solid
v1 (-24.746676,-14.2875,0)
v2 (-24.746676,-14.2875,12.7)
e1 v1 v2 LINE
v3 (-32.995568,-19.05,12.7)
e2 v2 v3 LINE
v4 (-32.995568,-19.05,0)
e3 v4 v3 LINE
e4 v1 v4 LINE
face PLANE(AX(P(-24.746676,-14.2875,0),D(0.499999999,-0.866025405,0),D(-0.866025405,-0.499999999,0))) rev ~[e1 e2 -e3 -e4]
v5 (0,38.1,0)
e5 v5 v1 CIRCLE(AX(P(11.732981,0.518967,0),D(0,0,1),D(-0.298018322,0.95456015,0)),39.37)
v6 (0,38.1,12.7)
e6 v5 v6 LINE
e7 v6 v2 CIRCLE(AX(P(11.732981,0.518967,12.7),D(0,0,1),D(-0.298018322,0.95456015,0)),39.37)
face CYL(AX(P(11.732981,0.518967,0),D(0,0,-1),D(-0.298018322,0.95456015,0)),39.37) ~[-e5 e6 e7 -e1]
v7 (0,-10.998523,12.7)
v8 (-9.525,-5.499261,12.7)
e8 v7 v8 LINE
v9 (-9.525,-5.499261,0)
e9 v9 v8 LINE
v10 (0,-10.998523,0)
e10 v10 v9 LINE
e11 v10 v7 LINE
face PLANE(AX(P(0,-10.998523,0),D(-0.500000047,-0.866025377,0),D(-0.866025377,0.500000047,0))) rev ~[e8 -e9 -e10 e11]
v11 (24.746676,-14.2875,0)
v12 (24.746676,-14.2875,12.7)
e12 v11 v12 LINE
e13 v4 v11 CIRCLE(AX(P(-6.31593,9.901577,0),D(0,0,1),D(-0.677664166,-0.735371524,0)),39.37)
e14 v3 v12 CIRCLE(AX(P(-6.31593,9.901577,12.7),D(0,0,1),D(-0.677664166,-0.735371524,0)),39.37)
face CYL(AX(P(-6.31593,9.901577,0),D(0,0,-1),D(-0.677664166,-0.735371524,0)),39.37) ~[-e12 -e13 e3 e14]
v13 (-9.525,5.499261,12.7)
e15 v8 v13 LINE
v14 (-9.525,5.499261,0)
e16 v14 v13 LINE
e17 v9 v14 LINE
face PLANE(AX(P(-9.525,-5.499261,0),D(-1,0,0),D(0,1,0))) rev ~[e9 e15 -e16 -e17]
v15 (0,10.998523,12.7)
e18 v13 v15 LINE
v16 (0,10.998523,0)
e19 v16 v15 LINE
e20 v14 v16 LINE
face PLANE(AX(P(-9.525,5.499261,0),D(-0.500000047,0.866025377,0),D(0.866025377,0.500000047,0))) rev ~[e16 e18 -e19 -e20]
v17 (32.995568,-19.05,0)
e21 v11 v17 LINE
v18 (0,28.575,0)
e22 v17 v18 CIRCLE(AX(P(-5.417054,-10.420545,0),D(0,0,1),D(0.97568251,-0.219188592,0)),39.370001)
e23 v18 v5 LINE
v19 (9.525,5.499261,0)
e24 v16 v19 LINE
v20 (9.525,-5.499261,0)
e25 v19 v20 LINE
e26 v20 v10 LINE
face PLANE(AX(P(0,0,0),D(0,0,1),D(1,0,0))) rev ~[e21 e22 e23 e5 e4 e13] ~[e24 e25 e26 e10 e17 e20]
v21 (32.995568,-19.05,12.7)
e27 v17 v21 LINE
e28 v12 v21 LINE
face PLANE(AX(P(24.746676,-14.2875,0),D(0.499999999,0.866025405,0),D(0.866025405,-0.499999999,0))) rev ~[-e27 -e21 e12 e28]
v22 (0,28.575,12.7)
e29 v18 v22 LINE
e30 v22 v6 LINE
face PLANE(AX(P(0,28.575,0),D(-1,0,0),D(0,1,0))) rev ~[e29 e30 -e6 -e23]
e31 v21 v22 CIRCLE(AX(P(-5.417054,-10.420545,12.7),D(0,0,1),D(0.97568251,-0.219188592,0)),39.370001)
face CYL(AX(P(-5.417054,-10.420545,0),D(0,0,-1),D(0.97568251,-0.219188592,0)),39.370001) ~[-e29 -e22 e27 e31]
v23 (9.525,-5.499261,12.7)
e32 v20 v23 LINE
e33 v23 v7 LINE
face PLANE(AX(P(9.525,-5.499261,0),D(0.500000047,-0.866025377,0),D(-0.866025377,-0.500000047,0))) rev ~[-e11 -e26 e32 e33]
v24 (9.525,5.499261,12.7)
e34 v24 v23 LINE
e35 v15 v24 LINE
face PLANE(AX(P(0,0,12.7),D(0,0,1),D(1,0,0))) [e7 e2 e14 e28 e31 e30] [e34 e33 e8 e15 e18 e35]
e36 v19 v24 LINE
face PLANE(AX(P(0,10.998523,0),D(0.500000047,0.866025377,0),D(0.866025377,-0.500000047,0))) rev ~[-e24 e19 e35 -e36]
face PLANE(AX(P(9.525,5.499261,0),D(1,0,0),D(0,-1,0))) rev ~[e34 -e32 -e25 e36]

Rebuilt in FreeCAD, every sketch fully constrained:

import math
import FreeCAD as App
import Part
import Sketcher
from FreeCAD import Vector
Q = App.Units.Quantity


def add_polygon(sketch, points):
    """Adds a closed chain of lines whose ends are joined by coincident constraints."""
    first, n = sketch.GeometryCount, len(points)
    for a, b in zip(points, points[1:] + points[:1]):
        sketch.addGeometry(Part.LineSegment(App.Vector(*a, 0), App.Vector(*b, 0)), False)
    for i in range(n):
        sketch.addConstraint(Sketcher.Constraint("Coincident", first + i, 2, first + (i + 1) % n, 1))

doc = App.newDocument("Part")
body = doc.addObject("PartDesign::Body", "Body")

# Sketch on XY plane
sketch1 = doc.addObject("Sketcher::SketchObject", "Sketch")
body.addObject(sketch1)
sketch1.AttachmentSupport = (doc.XY_Plane, [""])
sketch1.MapMode = "FlatFace"
sketch1.addGeometry(Part.LineSegment(Vector(0, 29, 0), Vector(0, 38, 0)), False)  # 0
sketch1.addGeometry(Part.ArcOfCircle(Part.Circle(Vector(12, 1, 0), Vector(0, 0, 1), 39), math.radians(107), math.radians(202)), False)  # 1
sketch1.addGeometry(Part.LineSegment(Vector(-25, -14, 0), Vector(-33, -19, 0)), False)  # 2
sketch1.addGeometry(Part.ArcOfCircle(Part.Circle(Vector(-6, 10, 0), Vector(0, 0, 1), 39), math.radians(-133), math.radians(-38)), False)  # 3
sketch1.addGeometry(Part.LineSegment(Vector(25, -14, 0), Vector(33, -19, 0)), False)  # 4
sketch1.addGeometry(Part.ArcOfCircle(Part.Circle(Vector(-5, -10, 0), Vector(0, 0, 1), 39), math.radians(-13), math.radians(82)), False)  # 5
add_polygon(sketch1, [(-10, 5), (0, 11), (10, 5), (10, -5), (0, -11), (-10, -5)])  # lines 6-11
sketch1.addConstraint(Sketcher.Constraint("Coincident", 0, 2, 1, 1))
sketch1.addConstraint(Sketcher.Constraint("Coincident", 1, 2, 2, 1))
sketch1.addConstraint(Sketcher.Constraint("Coincident", 2, 2, 3, 1))
sketch1.addConstraint(Sketcher.Constraint("Coincident", 3, 2, 4, 1))
sketch1.addConstraint(Sketcher.Constraint("Coincident", 4, 2, 5, 1))
sketch1.addConstraint(Sketcher.Constraint("Coincident", 5, 2, 0, 1))
sketch1.addConstraint(Sketcher.Constraint("Vertical", 0))
sketch1.addConstraint(Sketcher.Constraint("Vertical", 8))
sketch1.addConstraint(Sketcher.Constraint("Vertical", 11))
sketch1.addConstraint(Sketcher.Constraint("Equal", 1, 3))
sketch1.addConstraint(Sketcher.Constraint("Equal", 3, 5))
sketch1.addConstraint(Sketcher.Constraint("Symmetric", 6, 2, 9, 2, -1, 1))
sketch1.addConstraint(Sketcher.Constraint("Symmetric", 7, 2, 10, 2, -1, 1))
sketch1.addConstraint(Sketcher.Constraint("Symmetric", 1, 2, 3, 2, -2))
sketch1.addConstraint(Sketcher.Constraint("Symmetric", 2, 2, 4, 2, -2))
sketch1.addConstraint(Sketcher.Constraint("PointOnObject", 0, 2, -2))
sketch1.addConstraint(Sketcher.Constraint("PointOnObject", 6, 2, -2))
sketch1.addConstraint(Sketcher.Constraint("Parallel", 2, 6))
sketch1.addConstraint(Sketcher.Constraint("Parallel", 4, 7))
sketch1.addConstraint(Sketcher.Constraint("Parallel", 6, 9))
sketch1.addConstraint(Sketcher.Constraint("Radius", 1, Q("1.55 in")))
sketch1.addConstraint(Sketcher.Constraint("Angle", 2, Q("-150 deg")))
sketch1.addConstraint(Sketcher.Constraint("DistanceY", -1, 1, 0, 2, Q("1.5 in")))
sketch1.addConstraint(Sketcher.Constraint("DistanceY", 0, 1, 0, 2, Q("0.375 in")))
sketch1.addConstraint(Sketcher.Constraint("DistanceY", 2, 2, -1, 1, Q("0.75 in")))
sketch1.addConstraint(Sketcher.Constraint("DistanceX", 10, 2, 8, 2, Q("0.75 in")))
sketch1.addConstraint(Sketcher.Constraint("Distance", 2, Q("0.375 in")))
sketch1.addConstraint(Sketcher.Constraint("DistanceY", 9, 2, 3, 3, Q("20.9001 mm")))
sketch1.addConstraint(Sketcher.Constraint("DistanceY", 8, 2, 8, 1, Q("10.998522 mm")))
pad1 = doc.addObject("PartDesign::Pad", "Pad")
body.addObject(pad1)
pad1.Profile = sketch1
pad1.Length = Q("0.5 in")

doc.recompute()
